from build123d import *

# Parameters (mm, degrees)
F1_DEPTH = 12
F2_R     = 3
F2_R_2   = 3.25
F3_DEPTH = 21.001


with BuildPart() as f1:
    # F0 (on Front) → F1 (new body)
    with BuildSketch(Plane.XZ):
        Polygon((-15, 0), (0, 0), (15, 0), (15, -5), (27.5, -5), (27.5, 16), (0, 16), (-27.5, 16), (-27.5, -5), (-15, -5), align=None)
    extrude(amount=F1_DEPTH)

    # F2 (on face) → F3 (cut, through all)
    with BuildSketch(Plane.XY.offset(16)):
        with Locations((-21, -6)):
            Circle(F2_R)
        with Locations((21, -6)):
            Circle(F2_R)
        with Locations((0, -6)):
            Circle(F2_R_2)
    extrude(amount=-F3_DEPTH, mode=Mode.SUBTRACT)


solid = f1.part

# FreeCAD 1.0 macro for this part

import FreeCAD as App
import Part
import Sketcher


def add_polygon(sketch, points):
    """Adds a closed chain of lines whose ends are joined by coincident constraints."""
    first, n = sketch.GeometryCount, len(points)
    for a, b in zip(points, points[1:] + points[:1]):
        sketch.addGeometry(Part.LineSegment(App.Vector(*a, 0), App.Vector(*b, 0)), False)
    for i in range(n):
        sketch.addConstraint(Sketcher.Constraint("Coincident", first + i, 2, first + (i + 1) % n, 1))

doc = App.newDocument("Part")
body = doc.addObject("PartDesign::Body", "Body")

sketch1 = body.newObject("Sketcher::SketchObject", "Sketch")
sketch1.AttachmentSupport = (doc.getObject("XZ_Plane"), [""])
sketch1.MapMode = "FlatFace"
add_polygon(sketch1, [(-15, 0), (15, 0), (15, -5), (28, -5), (28, 16), (-28, 16), (-28, -5), (-15, -5)])
sketch1.addConstraint(Sketcher.Constraint("Horizontal", 0))
sketch1.addConstraint(Sketcher.Constraint("Vertical", 1))
sketch1.addConstraint(Sketcher.Constraint("Horizontal", 2))
sketch1.addConstraint(Sketcher.Constraint("Vertical", 3))
sketch1.addConstraint(Sketcher.Constraint("Horizontal", 4))
sketch1.addConstraint(Sketcher.Constraint("Vertical", 5))
sketch1.addConstraint(Sketcher.Constraint("Horizontal", 6))
sketch1.addConstraint(Sketcher.Constraint("Vertical", 7))
sketch1.addConstraint(Sketcher.Constraint("Symmetric", 0, 2, 7, 2, -1, 1))
sketch1.addConstraint(Sketcher.Constraint("Symmetric", 2, 2, 5, 2, -2))
sketch1.addConstraint(Sketcher.Constraint("DistanceX", 0, 1, 0, 2, 30.0))
sketch1.addConstraint(Sketcher.Constraint("DistanceX", 4, 2, 4, 1, 55.0))
sketch1.addConstraint(Sketcher.Constraint("DistanceY", 1, 2, 1, 1, 5.0))
sketch1.addConstraint(Sketcher.Constraint("DistanceY", 3, 1, 3, 2, 21.0))
pad1 = body.newObject("PartDesign::Pad", "Pad")
pad1.Profile = sketch1
pad1.Length = 12

sketch2 = body.newObject("Sketcher::SketchObject", "Sketch001")
sketch2.AttachmentSupport = (doc.getObject("XY_Plane"), [""])
sketch2.MapMode = "FlatFace"
sketch2.AttachmentOffset = App.Placement(App.Vector(0, 0, 16), App.Rotation())
sketch2.addGeometry(Part.Circle(App.Vector(-21, -6, 0), App.Vector(0, 0, 1), 3), False)
sketch2.addGeometry(Part.Circle(App.Vector(21, -6, 0), App.Vector(0, 0, 1), 3), False)
sketch2.addGeometry(Part.Circle(App.Vector(0, -6, 0), App.Vector(0, 0, 1), 3.2), False)
sketch2.addConstraint(Sketcher.Constraint("Equal", 0, 1))
sketch2.addConstraint(Sketcher.Constraint("Symmetric", 0, 3, 1, 3, -2))
sketch2.addConstraint(Sketcher.Constraint("PointOnObject", 2, 3, -2))
sketch2.addConstraint(Sketcher.Constraint("Horizontal", 1, 3, 2, 3))
sketch2.addConstraint(Sketcher.Constraint("Diameter", 0, 6.0))
sketch2.addConstraint(Sketcher.Constraint("Diameter", 2, 6.5))
sketch2.addConstraint(Sketcher.Constraint("DistanceX", 0, 3, -1, 1, 21.0))
sketch2.addConstraint(Sketcher.Constraint("DistanceY", 0, 3, -1, 1, 6.0))
pocket1 = body.newObject("PartDesign::Pocket", "Pocket")
pocket1.Profile = sketch2
pocket1.Type = "ThroughAll"

doc.recompute()
